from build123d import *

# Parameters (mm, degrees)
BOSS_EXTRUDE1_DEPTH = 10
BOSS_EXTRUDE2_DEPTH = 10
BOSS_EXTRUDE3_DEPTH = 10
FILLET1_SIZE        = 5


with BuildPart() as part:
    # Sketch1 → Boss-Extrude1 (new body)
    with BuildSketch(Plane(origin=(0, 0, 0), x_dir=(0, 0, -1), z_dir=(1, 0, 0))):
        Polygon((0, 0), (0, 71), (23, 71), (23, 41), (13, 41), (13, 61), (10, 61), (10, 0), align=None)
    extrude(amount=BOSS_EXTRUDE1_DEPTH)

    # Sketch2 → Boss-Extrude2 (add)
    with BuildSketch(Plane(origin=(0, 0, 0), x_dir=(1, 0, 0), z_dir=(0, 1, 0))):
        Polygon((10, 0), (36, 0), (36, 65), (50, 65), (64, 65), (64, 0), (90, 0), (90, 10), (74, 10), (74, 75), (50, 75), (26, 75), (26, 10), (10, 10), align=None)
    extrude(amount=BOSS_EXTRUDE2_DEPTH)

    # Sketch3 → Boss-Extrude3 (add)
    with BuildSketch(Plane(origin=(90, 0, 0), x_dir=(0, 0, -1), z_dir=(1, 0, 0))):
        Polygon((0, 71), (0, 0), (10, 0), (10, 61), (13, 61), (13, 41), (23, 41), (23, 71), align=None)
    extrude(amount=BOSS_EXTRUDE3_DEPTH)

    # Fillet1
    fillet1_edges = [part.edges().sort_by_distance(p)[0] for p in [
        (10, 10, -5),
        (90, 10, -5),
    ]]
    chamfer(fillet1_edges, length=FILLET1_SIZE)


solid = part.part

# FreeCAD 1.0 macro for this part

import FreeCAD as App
import Part
import Sketcher


def edges_at(feature, points):
    """Names of the edges that pass closest to the given points."""
    edges = feature.Shape.Edges
    near = lambda p: min(range(len(edges)), key=lambda i: edges[i].distToShape(Part.Vertex(*p))[0])
    return sorted({f"Edge{near(p) + 1}" for p in points})

doc = App.newDocument("Part")
body = doc.addObject("PartDesign::Body", "Body")

sketch1 = doc.addObject("Sketcher::SketchObject", "Sketch")
body.addObject(sketch1)
sketch1.AttachmentSupport = (doc.YZ_Plane, [""])
sketch1.MapMode = "FlatFace"
sketch1.addGeometry(Part.LineSegment(App.Vector(71, 0, 0), App.Vector(0, 0, 0)), False)
sketch1.addGeometry(Part.LineSegment(App.Vector(0, 0, 0), App.Vector(0, -10, 0)), False)
sketch1.addGeometry(Part.LineSegment(App.Vector(0, -10, 0), App.Vector(61, -10, 0)), False)
sketch1.addGeometry(Part.LineSegment(App.Vector(61, -10, 0), App.Vector(61, -13, 0)), False)
sketch1.addGeometry(Part.LineSegment(App.Vector(61, -13, 0), App.Vector(41, -13, 0)), False)
sketch1.addGeometry(Part.LineSegment(App.Vector(41, -13, 0), App.Vector(41, -23, 0)), False)
sketch1.addGeometry(Part.LineSegment(App.Vector(41, -23, 0), App.Vector(71, -23, 0)), False)
sketch1.addGeometry(Part.LineSegment(App.Vector(71, -23, 0), App.Vector(71, 0, 0)), False)
sketch1.addConstraint(Sketcher.Constraint("Coincident", 0, 2, 1, 1))
sketch1.addConstraint(Sketcher.Constraint("Coincident", 1, 2, 2, 1))
sketch1.addConstraint(Sketcher.Constraint("Coincident", 2, 2, 3, 1))
sketch1.addConstraint(Sketcher.Constraint("Coincident", 3, 2, 4, 1))
sketch1.addConstraint(Sketcher.Constraint("Coincident", 4, 2, 5, 1))
sketch1.addConstraint(Sketcher.Constraint("Coincident", 5, 2, 6, 1))
sketch1.addConstraint(Sketcher.Constraint("Coincident", 6, 2, 7, 1))
sketch1.addConstraint(Sketcher.Constraint("Coincident", 7, 2, 0, 1))
sketch1.addConstraint(Sketcher.Constraint("Horizontal", 0))
sketch1.addConstraint(Sketcher.Constraint("Vertical", 1))
sketch1.addConstraint(Sketcher.Constraint("Horizontal", 2))
sketch1.addConstraint(Sketcher.Constraint("Vertical", 3))
sketch1.addConstraint(Sketcher.Constraint("Horizontal", 4))
sketch1.addConstraint(Sketcher.Constraint("Vertical", 5))
sketch1.addConstraint(Sketcher.Constraint("Horizontal", 6))
sketch1.addConstraint(Sketcher.Constraint("Vertical", 7))
sketch1.addConstraint(Sketcher.Constraint("Coincident", 0, 2, -1, 1))
sketch1.addConstraint(Sketcher.Constraint("Equal", 1, 5))
sketch1.addConstraint(Sketcher.Constraint("DistanceX", 0, 2, 0, 1, 71.0))
sketch1.addConstraint(Sketcher.Constraint("DistanceX", 2, 1, 2, 2, 61.0))
sketch1.addConstraint(Sketcher.Constraint("DistanceX", 4, 2, 4, 1, 20.0))
sketch1.addConstraint(Sketcher.Constraint("DistanceY", 1, 2, 1, 1, 10.0))
sketch1.addConstraint(Sketcher.Constraint("DistanceY", 3, 2, 3, 1, 3.0))
pad1 = doc.addObject("PartDesign::Pad", "Pad")
body.addObject(pad1)
pad1.Profile = sketch1
pad1.Length = 10

sketch2 = doc.addObject("Sketcher::SketchObject", "Sketch001")
body.addObject(sketch2)
sketch2.AttachmentSupport = (doc.XZ_Plane, [""])
sketch2.MapMode = "FlatFace"
sketch2.addGeometry(Part.LineSegment(App.Vector(10, 0, 0), App.Vector(36, 0, 0)), False)
sketch2.addGeometry(Part.LineSegment(App.Vector(36, 0, 0), App.Vector(36, -65, 0)), False)
sketch2.addGeometry(Part.LineSegment(App.Vector(36, -65, 0), App.Vector(64, -65, 0)), False)
sketch2.addGeometry(Part.LineSegment(App.Vector(64, -65, 0), App.Vector(64, 0, 0)), False)
sketch2.addGeometry(Part.LineSegment(App.Vector(64, 0, 0), App.Vector(90, 0, 0)), False)
sketch2.addGeometry(Part.LineSegment(App.Vector(90, 0, 0), App.Vector(90, -10, 0)), False)
sketch2.addGeometry(Part.LineSegment(App.Vector(90, -10, 0), App.Vector(74, -10, 0)), False)
sketch2.addGeometry(Part.LineSegment(App.Vector(74, -10, 0), App.Vector(74, -75, 0)), False)
sketch2.addGeometry(Part.LineSegment(App.Vector(74, -75, 0), App.Vector(26, -75, 0)), False)
sketch2.addGeometry(Part.LineSegment(App.Vector(26, -75, 0), App.Vector(26, -10, 0)), False)
sketch2.addGeometry(Part.LineSegment(App.Vector(26, -10, 0), App.Vector(10, -10, 0)), False)
sketch2.addGeometry(Part.LineSegment(App.Vector(10, -10, 0), App.Vector(10, 0, 0)), False)
sketch2.addConstraint(Sketcher.Constraint("Coincident", 0, 2, 1, 1))
sketch2.addConstraint(Sketcher.Constraint("Coincident", 1, 2, 2, 1))
sketch2.addConstraint(Sketcher.Constraint("Coincident", 2, 2, 3, 1))
sketch2.addConstraint(Sketcher.Constraint("Coincident", 3, 2, 4, 1))
sketch2.addConstraint(Sketcher.Constraint("Coincident", 4, 2, 5, 1))
sketch2.addConstraint(Sketcher.Constraint("Coincident", 5, 2, 6, 1))
sketch2.addConstraint(Sketcher.Constraint("Coincident", 6, 2, 7, 1))
sketch2.addConstraint(Sketcher.Constraint("Coincident", 7, 2, 8, 1))
sketch2.addConstraint(Sketcher.Constraint("Coincident", 8, 2, 9, 1))
sketch2.addConstraint(Sketcher.Constraint("Coincident", 9, 2, 10, 1))
sketch2.addConstraint(Sketcher.Constraint("Coincident", 10, 2, 11, 1))
sketch2.addConstraint(Sketcher.Constraint("Coincident", 11, 2, 0, 1))
sketch2.addConstraint(Sketcher.Constraint("Horizontal", 0))
sketch2.addConstraint(Sketcher.Constraint("Vertical", 1))
sketch2.addConstraint(Sketcher.Constraint("Horizontal", 2))
sketch2.addConstraint(Sketcher.Constraint("Vertical", 3))
sketch2.addConstraint(Sketcher.Constraint("Horizontal", 4))
sketch2.addConstraint(Sketcher.Constraint("Vertical", 5))
sketch2.addConstraint(Sketcher.Constraint("Horizontal", 6))
sketch2.addConstraint(Sketcher.Constraint("Vertical", 7))
sketch2.addConstraint(Sketcher.Constraint("Horizontal", 8))
sketch2.addConstraint(Sketcher.Constraint("Vertical", 9))
sketch2.addConstraint(Sketcher.Constraint("Horizontal", 10))
sketch2.addConstraint(Sketcher.Constraint("Vertical", 11))
sketch2.addConstraint(Sketcher.Constraint("PointOnObject", 0, 2, -1))
sketch2.addConstraint(Sketcher.Constraint("PointOnObject", 3, 2, -1))
sketch2.addConstraint(Sketcher.Constraint("Horizontal", 6, 2, 9, 2))
sketch2.addConstraint(Sketcher.Constraint("Equal", 0, 4))
sketch2.addConstraint(Sketcher.Constraint("Equal", 6, 10))
sketch2.addConstraint(Sketcher.Constraint("Equal", 3, 7))
sketch2.addConstraint(Sketcher.Constraint("DistanceX", 0, 1, 0, 2, 26.0))
sketch2.addConstraint(Sketcher.Constraint("DistanceX", 2, 1, 2, 2, 28.0))
sketch2.addConstraint(Sketcher.Constraint("DistanceX", 6, 2, 6, 1, 16.0))
sketch2.addConstraint(Sketcher.Constraint("DistanceY", 1, 2, 1, 1, 65.0))
sketch2.addConstraint(Sketcher.Constraint("DistanceY", 5, 2, 5, 1, 10.0))
sketch2.addConstraint(Sketcher.Constraint("DistanceX", -1, 1, 0, 2, 36.0))
pad2 = doc.addObject("PartDesign::Pad", "Pad001")
body.addObject(pad2)
pad2.Profile = sketch2
pad2.Length = 10
pad2.Reversed = True

sketch3 = doc.addObject("Sketcher::SketchObject", "Sketch002")
body.addObject(sketch3)
sketch3.AttachmentSupport = (doc.YZ_Plane, [""])
sketch3.MapMode = "FlatFace"
sketch3.AttachmentOffset = App.Placement(App.Vector(0, 0, 90), App.Rotation())
sketch3.addGeometry(Part.LineSegment(App.Vector(71, 0, 0), App.Vector(0, 0, 0)), False)
sketch3.addGeometry(Part.LineSegment(App.Vector(0, 0, 0), App.Vector(0, -10, 0)), False)
sketch3.addGeometry(Part.LineSegment(App.Vector(0, -10, 0), App.Vector(61, -10, 0)), False)
sketch3.addGeometry(Part.LineSegment(App.Vector(61, -10, 0), App.Vector(61, -13, 0)), False)
sketch3.addGeometry(Part.LineSegment(App.Vector(61, -13, 0), App.Vector(41, -13, 0)), False)
sketch3.addGeometry(Part.LineSegment(App.Vector(41, -13, 0), App.Vector(41, -23, 0)), False)
sketch3.addGeometry(Part.LineSegment(App.Vector(41, -23, 0), App.Vector(71, -23, 0)), False)
sketch3.addGeometry(Part.LineSegment(App.Vector(71, -23, 0), App.Vector(71, 0, 0)), False)
sketch3.addConstraint(Sketcher.Constraint("Coincident", 0, 2, 1, 1))
sketch3.addConstraint(Sketcher.Constraint("Coincident", 1, 2, 2, 1))
sketch3.addConstraint(Sketcher.Constraint("Coincident", 2, 2, 3, 1))
sketch3.addConstraint(Sketcher.Constraint("Coincident", 3, 2, 4, 1))
sketch3.addConstraint(Sketcher.Constraint("Coincident", 4, 2, 5, 1))
sketch3.addConstraint(Sketcher.Constraint("Coincident", 5, 2, 6, 1))
sketch3.addConstraint(Sketcher.Constraint("Coincident", 6, 2, 7, 1))
sketch3.addConstraint(Sketcher.Constraint("Coincident", 7, 2, 0, 1))
sketch3.addConstraint(Sketcher.Constraint("Horizontal", 0))
sketch3.addConstraint(Sketcher.Constraint("Vertical", 1))
sketch3.addConstraint(Sketcher.Constraint("Horizontal", 2))
sketch3.addConstraint(Sketcher.Constraint("Vertical", 3))
sketch3.addConstraint(Sketcher.Constraint("Horizontal", 4))
sketch3.addConstraint(Sketcher.Constraint("Vertical", 5))
sketch3.addConstraint(Sketcher.Constraint("Horizontal", 6))
sketch3.addConstraint(Sketcher.Constraint("Vertical", 7))
sketch3.addConstraint(Sketcher.Constraint("Coincident", 0, 2, -1, 1))
sketch3.addConstraint(Sketcher.Constraint("Equal", 1, 5))
sketch3.addConstraint(Sketcher.Constraint("DistanceX", 0, 2, 0, 1, 71.0))
sketch3.addConstraint(Sketcher.Constraint("DistanceX", 2, 1, 2, 2, 61.0))
sketch3.addConstraint(Sketcher.Constraint("DistanceX", 4, 2, 4, 1, 20.0))
sketch3.addConstraint(Sketcher.Constraint("DistanceY", 1, 2, 1, 1, 10.0))
sketch3.addConstraint(Sketcher.Constraint("DistanceY", 3, 2, 3, 1, 3.0))
pad3 = doc.addObject("PartDesign::Pad", "Pad002")
body.addObject(pad3)
pad3.Profile = sketch3
pad3.Length = 10
doc.recompute()

chamfer = doc.addObject("PartDesign::Chamfer", "Chamfer")
body.addObject(chamfer)
chamfer.Base = (pad3, edges_at(pad3, [(10, 10, -5), (90, 10, -5)]))
chamfer.Size = 5

doc.recompute()
